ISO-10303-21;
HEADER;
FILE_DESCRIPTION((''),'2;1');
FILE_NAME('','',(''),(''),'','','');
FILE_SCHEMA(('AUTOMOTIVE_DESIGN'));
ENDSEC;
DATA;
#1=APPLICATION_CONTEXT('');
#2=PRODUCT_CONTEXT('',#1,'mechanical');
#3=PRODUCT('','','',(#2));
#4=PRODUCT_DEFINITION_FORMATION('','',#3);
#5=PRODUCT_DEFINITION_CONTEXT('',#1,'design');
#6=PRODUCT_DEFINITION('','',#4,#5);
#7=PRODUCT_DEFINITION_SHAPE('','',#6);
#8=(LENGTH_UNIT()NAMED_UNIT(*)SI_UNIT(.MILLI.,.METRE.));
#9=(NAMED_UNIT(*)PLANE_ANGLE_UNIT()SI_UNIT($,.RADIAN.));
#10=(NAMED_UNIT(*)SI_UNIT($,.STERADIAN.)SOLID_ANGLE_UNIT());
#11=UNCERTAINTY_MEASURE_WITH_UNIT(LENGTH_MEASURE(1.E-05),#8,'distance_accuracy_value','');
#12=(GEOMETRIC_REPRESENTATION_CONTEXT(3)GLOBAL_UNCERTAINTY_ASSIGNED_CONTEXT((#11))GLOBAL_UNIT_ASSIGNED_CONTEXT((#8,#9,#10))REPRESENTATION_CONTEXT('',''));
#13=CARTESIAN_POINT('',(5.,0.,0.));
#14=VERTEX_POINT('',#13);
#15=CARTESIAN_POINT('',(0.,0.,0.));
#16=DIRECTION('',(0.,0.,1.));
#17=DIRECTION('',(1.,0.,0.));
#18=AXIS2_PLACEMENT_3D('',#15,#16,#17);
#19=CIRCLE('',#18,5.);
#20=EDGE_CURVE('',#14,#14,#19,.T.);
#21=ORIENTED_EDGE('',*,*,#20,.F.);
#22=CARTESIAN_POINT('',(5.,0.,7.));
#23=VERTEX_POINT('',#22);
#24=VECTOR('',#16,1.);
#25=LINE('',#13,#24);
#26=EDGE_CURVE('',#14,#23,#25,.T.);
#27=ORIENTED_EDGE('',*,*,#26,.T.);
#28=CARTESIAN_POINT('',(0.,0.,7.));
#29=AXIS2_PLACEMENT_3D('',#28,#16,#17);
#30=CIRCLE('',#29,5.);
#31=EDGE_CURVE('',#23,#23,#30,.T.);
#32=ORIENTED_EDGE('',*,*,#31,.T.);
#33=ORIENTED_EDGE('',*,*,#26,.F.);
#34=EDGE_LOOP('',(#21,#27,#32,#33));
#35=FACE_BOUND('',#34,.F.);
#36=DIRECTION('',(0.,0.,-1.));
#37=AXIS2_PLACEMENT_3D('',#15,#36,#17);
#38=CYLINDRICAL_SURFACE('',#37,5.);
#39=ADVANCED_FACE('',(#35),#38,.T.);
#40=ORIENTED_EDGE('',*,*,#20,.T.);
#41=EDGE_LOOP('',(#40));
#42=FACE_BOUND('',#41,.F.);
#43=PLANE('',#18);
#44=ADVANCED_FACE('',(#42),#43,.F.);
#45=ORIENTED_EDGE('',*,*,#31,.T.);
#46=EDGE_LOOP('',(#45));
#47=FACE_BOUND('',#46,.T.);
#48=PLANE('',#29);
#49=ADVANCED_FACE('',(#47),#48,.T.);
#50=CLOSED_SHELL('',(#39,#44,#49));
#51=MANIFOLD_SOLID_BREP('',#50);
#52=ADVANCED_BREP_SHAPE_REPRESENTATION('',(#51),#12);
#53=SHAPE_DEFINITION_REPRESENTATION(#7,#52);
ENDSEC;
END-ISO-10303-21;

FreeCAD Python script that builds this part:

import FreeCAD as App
import Part
import Sketcher
Q = App.Units.Quantity

doc = App.newDocument("Part")
params = doc.addObject("Spreadsheet::Sheet", "Params")
for row, (alias, value) in enumerate([
    ("sketch1_diameter", "10 mm"),
    ("pad1_length", "7 mm"),
], start=1):
    params.set(f"A{row}", alias)
    params.set(f"B{row}", "=" + value)
    params.setAlias(f"B{row}", alias)

body = doc.addObject("PartDesign::Body", "Body")

sketch1 = body.newObject("Sketcher::SketchObject", "Sketch")
sketch1.AttachmentSupport = (doc.getObject("XY_Plane"), [""])
sketch1.MapMode = "FlatFace"
sketch1.addGeometry(Part.Circle(App.Vector(0, 0, 0), App.Vector(0, 0, 1), 5), False)
sketch1.addConstraint(Sketcher.Constraint("Coincident", 0, 3, -1, 1))
sketch1.addConstraint(Sketcher.Constraint("Diameter", 0, Q("10 mm")))
sketch1.setExpression("Constraints[1]", "Params.sketch1_diameter")
pad1 = body.newObject("PartDesign::Pad", "Pad")
pad1.Profile = sketch1
pad1.setExpression("Length", "Params.pad1_length")

doc.recompute()
